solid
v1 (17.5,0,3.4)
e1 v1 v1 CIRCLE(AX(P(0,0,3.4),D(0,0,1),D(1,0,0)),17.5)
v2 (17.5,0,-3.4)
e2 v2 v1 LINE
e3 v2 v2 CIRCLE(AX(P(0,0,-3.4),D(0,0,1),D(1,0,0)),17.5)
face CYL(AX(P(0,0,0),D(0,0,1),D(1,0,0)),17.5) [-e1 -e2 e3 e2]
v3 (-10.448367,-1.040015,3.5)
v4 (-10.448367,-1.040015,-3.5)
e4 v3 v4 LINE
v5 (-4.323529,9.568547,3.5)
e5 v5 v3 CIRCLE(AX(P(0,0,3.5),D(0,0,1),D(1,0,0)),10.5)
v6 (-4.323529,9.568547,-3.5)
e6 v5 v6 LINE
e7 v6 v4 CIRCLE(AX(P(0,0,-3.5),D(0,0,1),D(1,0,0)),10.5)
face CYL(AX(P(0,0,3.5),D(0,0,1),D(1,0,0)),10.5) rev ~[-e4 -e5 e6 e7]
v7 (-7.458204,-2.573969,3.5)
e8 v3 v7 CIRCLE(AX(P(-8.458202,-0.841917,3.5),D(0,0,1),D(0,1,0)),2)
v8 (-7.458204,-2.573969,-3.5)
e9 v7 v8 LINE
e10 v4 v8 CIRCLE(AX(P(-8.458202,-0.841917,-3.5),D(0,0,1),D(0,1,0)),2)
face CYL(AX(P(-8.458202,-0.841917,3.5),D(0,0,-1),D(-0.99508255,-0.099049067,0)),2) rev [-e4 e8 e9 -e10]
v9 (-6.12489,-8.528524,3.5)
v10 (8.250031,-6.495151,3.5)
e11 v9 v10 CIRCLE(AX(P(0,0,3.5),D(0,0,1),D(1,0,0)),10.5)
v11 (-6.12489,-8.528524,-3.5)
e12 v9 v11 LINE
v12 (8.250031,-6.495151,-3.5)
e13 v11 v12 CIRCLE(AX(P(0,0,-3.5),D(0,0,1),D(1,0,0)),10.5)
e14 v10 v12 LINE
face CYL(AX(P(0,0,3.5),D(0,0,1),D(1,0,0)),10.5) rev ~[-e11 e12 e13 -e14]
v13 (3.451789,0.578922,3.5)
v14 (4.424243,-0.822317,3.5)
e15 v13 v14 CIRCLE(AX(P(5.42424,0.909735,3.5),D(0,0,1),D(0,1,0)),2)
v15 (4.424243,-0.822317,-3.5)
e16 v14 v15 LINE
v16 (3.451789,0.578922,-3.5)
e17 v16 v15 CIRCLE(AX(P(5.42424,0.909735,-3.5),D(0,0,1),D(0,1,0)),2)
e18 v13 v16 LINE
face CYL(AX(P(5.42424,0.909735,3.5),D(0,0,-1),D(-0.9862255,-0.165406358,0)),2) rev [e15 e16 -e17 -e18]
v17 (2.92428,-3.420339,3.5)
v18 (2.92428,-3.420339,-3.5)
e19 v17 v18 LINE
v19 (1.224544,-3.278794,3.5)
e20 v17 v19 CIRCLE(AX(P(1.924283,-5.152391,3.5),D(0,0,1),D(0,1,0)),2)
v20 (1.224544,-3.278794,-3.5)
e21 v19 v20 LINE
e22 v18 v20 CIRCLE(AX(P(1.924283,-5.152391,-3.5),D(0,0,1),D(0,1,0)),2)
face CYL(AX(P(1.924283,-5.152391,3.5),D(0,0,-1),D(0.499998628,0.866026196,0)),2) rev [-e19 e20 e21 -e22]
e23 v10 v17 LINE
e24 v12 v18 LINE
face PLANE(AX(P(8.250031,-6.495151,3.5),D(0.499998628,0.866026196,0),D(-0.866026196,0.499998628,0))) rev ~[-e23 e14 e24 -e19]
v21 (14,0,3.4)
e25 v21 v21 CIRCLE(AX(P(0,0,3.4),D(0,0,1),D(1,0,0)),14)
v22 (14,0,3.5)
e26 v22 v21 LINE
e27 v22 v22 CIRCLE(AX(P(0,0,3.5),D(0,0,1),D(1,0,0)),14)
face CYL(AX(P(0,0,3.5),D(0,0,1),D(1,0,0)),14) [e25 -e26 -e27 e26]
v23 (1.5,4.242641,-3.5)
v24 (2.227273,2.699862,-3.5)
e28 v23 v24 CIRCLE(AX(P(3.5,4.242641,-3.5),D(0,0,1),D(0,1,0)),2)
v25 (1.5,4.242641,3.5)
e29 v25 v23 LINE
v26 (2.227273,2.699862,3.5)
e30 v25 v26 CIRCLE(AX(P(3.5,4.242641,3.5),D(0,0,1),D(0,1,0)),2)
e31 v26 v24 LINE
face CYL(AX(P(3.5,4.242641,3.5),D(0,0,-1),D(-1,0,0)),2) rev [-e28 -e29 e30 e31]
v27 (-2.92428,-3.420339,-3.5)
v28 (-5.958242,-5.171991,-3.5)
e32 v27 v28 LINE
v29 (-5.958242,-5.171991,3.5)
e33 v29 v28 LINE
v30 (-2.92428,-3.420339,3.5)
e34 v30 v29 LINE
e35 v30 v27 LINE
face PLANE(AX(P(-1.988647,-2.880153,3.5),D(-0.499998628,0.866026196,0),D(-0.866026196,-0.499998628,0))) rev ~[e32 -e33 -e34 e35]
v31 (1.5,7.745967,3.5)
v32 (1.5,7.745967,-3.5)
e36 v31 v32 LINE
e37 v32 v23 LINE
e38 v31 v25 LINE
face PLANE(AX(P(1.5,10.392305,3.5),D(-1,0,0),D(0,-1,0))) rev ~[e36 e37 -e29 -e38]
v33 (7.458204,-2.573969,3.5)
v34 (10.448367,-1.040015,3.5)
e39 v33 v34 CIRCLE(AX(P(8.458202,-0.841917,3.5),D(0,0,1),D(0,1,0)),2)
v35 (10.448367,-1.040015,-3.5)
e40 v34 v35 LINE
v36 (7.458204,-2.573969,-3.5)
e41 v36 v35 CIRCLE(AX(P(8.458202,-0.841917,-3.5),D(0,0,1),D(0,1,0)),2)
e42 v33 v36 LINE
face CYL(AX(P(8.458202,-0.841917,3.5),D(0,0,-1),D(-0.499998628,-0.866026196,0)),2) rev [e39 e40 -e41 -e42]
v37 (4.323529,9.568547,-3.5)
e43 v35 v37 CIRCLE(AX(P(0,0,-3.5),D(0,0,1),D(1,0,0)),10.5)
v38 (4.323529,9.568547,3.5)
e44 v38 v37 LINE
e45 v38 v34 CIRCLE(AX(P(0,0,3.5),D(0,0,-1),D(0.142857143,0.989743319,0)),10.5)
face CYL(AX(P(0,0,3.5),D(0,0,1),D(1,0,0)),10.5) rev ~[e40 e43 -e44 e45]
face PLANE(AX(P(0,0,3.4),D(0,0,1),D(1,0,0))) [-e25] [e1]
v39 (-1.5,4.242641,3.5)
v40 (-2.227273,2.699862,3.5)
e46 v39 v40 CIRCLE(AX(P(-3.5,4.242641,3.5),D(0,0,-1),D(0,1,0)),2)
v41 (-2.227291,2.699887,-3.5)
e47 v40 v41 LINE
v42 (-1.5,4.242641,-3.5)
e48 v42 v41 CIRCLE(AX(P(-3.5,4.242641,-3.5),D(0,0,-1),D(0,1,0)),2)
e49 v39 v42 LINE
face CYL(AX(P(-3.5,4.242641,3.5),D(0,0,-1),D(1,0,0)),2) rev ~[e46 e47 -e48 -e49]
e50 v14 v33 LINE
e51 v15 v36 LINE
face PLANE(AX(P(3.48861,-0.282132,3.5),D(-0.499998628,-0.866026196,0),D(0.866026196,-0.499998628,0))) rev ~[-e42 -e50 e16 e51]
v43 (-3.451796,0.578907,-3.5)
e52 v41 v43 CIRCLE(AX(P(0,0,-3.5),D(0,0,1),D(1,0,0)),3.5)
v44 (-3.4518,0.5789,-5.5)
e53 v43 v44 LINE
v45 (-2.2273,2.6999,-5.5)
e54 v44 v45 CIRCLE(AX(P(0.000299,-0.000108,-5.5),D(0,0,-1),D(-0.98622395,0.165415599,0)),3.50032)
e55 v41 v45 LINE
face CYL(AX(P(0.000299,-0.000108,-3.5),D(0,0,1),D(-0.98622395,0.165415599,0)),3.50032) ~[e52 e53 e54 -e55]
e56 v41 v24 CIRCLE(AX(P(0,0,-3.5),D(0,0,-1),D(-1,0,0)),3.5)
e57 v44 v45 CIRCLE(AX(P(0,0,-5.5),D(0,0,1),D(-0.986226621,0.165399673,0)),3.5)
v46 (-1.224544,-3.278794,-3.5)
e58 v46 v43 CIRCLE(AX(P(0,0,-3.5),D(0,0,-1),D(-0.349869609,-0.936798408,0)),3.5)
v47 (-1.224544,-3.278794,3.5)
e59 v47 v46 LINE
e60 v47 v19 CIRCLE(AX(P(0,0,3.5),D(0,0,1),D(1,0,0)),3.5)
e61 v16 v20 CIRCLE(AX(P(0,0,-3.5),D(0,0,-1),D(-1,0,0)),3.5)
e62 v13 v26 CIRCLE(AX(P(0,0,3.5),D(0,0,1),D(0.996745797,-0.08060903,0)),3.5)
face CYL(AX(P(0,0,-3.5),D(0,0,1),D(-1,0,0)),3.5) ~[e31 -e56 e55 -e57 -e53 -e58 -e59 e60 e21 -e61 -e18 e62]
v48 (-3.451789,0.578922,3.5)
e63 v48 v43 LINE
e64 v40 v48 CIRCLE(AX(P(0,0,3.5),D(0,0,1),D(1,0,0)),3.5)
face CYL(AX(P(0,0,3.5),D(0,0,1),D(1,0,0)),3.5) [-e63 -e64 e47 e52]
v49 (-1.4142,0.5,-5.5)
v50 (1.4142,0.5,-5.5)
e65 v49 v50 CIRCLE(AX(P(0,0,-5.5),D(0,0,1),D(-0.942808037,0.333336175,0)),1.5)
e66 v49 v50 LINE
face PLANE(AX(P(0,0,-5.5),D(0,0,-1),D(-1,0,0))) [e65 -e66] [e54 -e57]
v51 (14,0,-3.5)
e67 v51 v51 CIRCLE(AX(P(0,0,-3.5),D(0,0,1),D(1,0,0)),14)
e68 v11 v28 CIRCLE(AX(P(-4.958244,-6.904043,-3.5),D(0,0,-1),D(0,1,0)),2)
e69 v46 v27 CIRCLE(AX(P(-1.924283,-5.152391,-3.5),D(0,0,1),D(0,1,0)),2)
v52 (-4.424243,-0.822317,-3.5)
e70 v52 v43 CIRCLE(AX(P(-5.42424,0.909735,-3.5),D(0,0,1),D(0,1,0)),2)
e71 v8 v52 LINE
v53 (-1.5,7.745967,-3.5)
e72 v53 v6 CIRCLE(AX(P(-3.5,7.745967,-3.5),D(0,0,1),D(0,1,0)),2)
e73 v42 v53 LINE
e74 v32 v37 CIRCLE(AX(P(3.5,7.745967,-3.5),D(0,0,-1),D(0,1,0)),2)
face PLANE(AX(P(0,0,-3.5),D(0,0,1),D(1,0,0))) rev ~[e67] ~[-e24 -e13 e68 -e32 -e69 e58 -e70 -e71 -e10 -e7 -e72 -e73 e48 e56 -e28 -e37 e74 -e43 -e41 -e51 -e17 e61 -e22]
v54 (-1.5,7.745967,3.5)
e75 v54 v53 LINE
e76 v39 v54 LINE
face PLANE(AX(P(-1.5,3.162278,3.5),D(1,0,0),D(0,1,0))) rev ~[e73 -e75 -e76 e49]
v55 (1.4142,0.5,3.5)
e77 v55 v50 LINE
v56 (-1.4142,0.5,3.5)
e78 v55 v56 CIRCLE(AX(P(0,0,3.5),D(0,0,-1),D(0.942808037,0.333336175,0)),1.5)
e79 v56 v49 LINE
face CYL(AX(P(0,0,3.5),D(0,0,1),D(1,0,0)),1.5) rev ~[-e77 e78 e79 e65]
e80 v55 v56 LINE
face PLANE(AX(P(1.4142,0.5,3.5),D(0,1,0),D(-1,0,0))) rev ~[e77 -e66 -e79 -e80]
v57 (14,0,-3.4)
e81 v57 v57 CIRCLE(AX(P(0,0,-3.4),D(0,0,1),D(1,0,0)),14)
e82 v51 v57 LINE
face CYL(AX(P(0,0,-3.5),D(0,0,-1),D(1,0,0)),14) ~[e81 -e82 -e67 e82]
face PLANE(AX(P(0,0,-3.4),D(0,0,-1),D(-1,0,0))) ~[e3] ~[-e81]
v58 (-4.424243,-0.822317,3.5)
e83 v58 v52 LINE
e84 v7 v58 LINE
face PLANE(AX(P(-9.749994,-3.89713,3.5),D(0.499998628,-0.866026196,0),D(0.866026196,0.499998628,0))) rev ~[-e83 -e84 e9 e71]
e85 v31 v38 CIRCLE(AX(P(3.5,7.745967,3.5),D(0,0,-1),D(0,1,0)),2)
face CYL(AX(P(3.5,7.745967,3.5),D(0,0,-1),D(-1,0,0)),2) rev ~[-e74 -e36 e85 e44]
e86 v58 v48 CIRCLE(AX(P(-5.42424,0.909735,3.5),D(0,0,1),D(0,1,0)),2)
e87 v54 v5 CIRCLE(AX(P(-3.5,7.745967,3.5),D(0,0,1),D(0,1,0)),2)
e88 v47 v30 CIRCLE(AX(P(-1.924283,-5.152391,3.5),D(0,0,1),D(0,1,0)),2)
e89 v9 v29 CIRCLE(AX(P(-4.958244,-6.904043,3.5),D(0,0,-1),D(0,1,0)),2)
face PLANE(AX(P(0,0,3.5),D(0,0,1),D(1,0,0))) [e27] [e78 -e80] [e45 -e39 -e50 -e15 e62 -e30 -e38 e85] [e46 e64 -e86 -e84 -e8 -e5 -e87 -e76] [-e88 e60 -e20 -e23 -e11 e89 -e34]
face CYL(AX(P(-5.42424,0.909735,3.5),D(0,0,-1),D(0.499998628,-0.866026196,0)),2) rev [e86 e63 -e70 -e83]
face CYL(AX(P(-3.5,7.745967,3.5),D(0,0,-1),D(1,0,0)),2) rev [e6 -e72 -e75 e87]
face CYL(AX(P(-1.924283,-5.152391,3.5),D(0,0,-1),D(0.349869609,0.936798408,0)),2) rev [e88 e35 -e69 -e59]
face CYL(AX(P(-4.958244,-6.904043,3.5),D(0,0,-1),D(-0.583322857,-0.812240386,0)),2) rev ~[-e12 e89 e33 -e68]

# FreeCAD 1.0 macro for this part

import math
import FreeCAD as App
import Part
import Sketcher
Q = App.Units.Quantity


def edges_at(feature, points):
    """Names of the edges that pass closest to the given points."""
    edges = feature.Shape.Edges
    near = lambda p: min(range(len(edges)), key=lambda i: edges[i].distToShape(Part.Vertex(*p))[0])
    return sorted({f"Edge{near(p) + 1}" for p in points})

doc = App.newDocument("Part")
body = doc.addObject("PartDesign::Body", "Body")

# Sketch on XY plane
sketch1 = doc.addObject("Sketcher::SketchObject", "Sketch")
body.addObject(sketch1)
sketch1.AttachmentSupport = (doc.XY_Plane, [""])
sketch1.MapMode = "FlatFace"
sketch1.addGeometry(Part.Circle(App.Vector(0, 0, 0), App.Vector(0, 0, 1), 18), False)
sketch1.addConstraint(Sketcher.Constraint("Coincident", 0, 3, -1, 1))
sketch1.addConstraint(Sketcher.Constraint("Diameter", 0, 35.0))
pad1 = doc.addObject("PartDesign::Pad", "Pad")
body.addObject(pad1)
pad1.Profile = sketch1
pad1.Length = 7
pad1.Midplane = True

# Sketch on XY plane
sketch2 = doc.addObject("Sketcher::SketchObject", "Sketch001")
body.addObject(sketch2)
sketch2.AttachmentSupport = (doc.XY_Plane, [""])
sketch2.MapMode = "FlatFace"
sketch2.AttachmentOffset = App.Placement(App.Vector(0, 0, 3.5), App.Rotation())
sketch2.addGeometry(Part.ArcOfCircle(Part.Circle(App.Vector(0, 0, 0), App.Vector(0, 0, 1), 10.5), math.radians(-22), math.radians(82)), False)
sketch2.addGeometry(Part.LineSegment(App.Vector(1.5, 10.4, 0), App.Vector(1.5, 3.2, 0)), False)
sketch2.addGeometry(Part.ArcOfCircle(Part.Circle(App.Vector(0, 0, 0), App.Vector(0, 0, 1), 3.5), math.radians(-5), math.radians(65)), False)
sketch2.addGeometry(Part.LineSegment(App.Vector(3.5, -0.3, 0), App.Vector(9.7, -3.9, 0)), False)
sketch2.addGeometry(Part.ArcOfCircle(Part.Circle(App.Vector(0, 0, 0), App.Vector(0, 0, 1), 10.5), math.radians(-142), math.radians(-38)), False)
sketch2.addGeometry(Part.LineSegment(App.Vector(8.3, -6.5, 0), App.Vector(2, -2.9, 0)), False)
sketch2.addGeometry(Part.ArcOfCircle(Part.Circle(App.Vector(0, 0, 0), App.Vector(0, 0, 1), 3.5), math.radians(-125), math.radians(-55)), False)
sketch2.addGeometry(Part.LineSegment(App.Vector(-2, -2.9, 0), App.Vector(-8.3, -6.5, 0)), False)
sketch2.addGeometry(Part.LineSegment(App.Vector(-1.5, 3.2, 0), App.Vector(-1.5, 10.4, 0)), False)
sketch2.addGeometry(Part.ArcOfCircle(Part.Circle(App.Vector(0, 0, 0), App.Vector(0, 0, 1), 10.5), math.radians(98), math.radians(202)), False)
sketch2.addGeometry(Part.LineSegment(App.Vector(-9.7, -3.9, 0), App.Vector(-3.5, -0.3, 0)), False)
sketch2.addGeometry(Part.ArcOfCircle(Part.Circle(App.Vector(0, 0, 0), App.Vector(0, 0, 1), 3.5), math.radians(115), math.radians(185)), False)
sketch2.addConstraint(Sketcher.Constraint("Coincident", 0, 2, 1, 1))
sketch2.addConstraint(Sketcher.Constraint("Coincident", 1, 2, 2, 2))
sketch2.addConstraint(Sketcher.Constraint("Coincident", 2, 1, 3, 1))
sketch2.addConstraint(Sketcher.Constraint("Coincident", 3, 2, 0, 1))
sketch2.addConstraint(Sketcher.Constraint("Coincident", 4, 2, 5, 1))
sketch2.addConstraint(Sketcher.Constraint("Coincident", 5, 2, 6, 2))
sketch2.addConstraint(Sketcher.Constraint("Coincident", 6, 1, 7, 1))
sketch2.addConstraint(Sketcher.Constraint("Coincident", 7, 2, 4, 1))
sketch2.addConstraint(Sketcher.Constraint("Coincident", 8, 2, 9, 1))
sketch2.addConstraint(Sketcher.Constraint("Coincident", 9, 2, 10, 1))
sketch2.addConstraint(Sketcher.Constraint("Coincident", 10, 2, 11, 2))
sketch2.addConstraint(Sketcher.Constraint("Coincident", 11, 1, 8, 1))
sketch2.addConstraint(Sketcher.Constraint("Vertical", 1))
sketch2.addConstraint(Sketcher.Constraint("Vertical", 8))
sketch2.addConstraint(Sketcher.Constraint("Coincident", 0, 3, -1, 1))
sketch2.addConstraint(Sketcher.Constraint("Coincident", 2, 3, -1, 1))
sketch2.addConstraint(Sketcher.Constraint("Coincident", 4, 3, -1, 1))
sketch2.addConstraint(Sketcher.Constraint("Coincident", 6, 3, -1, 1))
sketch2.addConstraint(Sketcher.Constraint("Coincident", 9, 3, -1, 1))
sketch2.addConstraint(Sketcher.Constraint("Coincident", 11, 3, -1, 1))
sketch2.addConstraint(Sketcher.Constraint("Equal", 0, 4))
sketch2.addConstraint(Sketcher.Constraint("Equal", 2, 6))
sketch2.addConstraint(Sketcher.Constraint("Equal", 4, 9))
sketch2.addConstraint(Sketcher.Constraint("Equal", 6, 11))
sketch2.addConstraint(Sketcher.Constraint("Parallel", 3, 5))
sketch2.addConstraint(Sketcher.Constraint("Parallel", 7, 10))
sketch2.addConstraint(Sketcher.Constraint("Horizontal", 5, 2, 6, 1))
sketch2.addConstraint(Sketcher.Constraint("Horizontal", 4, 2, 7, 2))
sketch2.addConstraint(Sketcher.Constraint("Horizontal", 0, 2, 8, 2))
sketch2.addConstraint(Sketcher.Constraint("Horizontal", 3, 2, 9, 2))
sketch2.addConstraint(Sketcher.Constraint("Equal", 3, 5))
sketch2.addConstraint(Sketcher.Constraint("Radius", 0, 10.5))
sketch2.addConstraint(Sketcher.Constraint("Radius", 2, 3.5))
sketch2.addConstraint(Sketcher.Constraint("DistanceX", 8, 2, 0, 2, 3.0))
sketch2.addConstraint(Sketcher.Constraint("Angle", 3, Q("-30 deg")))
sketch2.addConstraint(Sketcher.Constraint("DistanceX", 4, 2, 3, 2, 1.5))
pocket1 = doc.addObject("PartDesign::Pocket", "Pocket")
body.addObject(pocket1)
pocket1.Profile = sketch2
pocket1.Type = "ThroughAll"
doc.recompute()

fillet = doc.addObject("PartDesign::Fillet", "Fillet")
body.addObject(fillet)
fillet.Base = (pocket1, edges_at(pocket1, [
    (1.5, 3.162, 0),
    (3.489, -0.282, 0),
    (9.75, -3.897, 0),
    (-8.25, -6.495, 0),
    (-9.75, -3.897, 0),
    (-3.489, -0.282, 0),
    (-1.5, 3.162, 0),
    (1.5, 10.392, 0),
    (-1.5, 10.392, 0),
    (-1.989, -2.88, 0),
    (1.989, -2.88, 0),
]))
fillet.Radius = 2

# Sketch on XY plane
sketch3 = doc.addObject("Sketcher::SketchObject", "Sketch002")
body.addObject(sketch3)
sketch3.AttachmentSupport = (doc.XY_Plane, [""])
sketch3.MapMode = "FlatFace"
sketch3.AttachmentOffset = App.Placement(App.Vector(0, 0, -3.5), App.Rotation())
sketch3.addGeometry(Part.ArcOfCircle(Part.Circle(App.Vector(0, 0, 0), App.Vector(0, 0, 1), 3.5), math.radians(170), math.radians(490)), False)
sketch3.addGeometry(Part.ArcOfCircle(Part.Circle(App.Vector(0, 0, 0), App.Vector(0, 0, 1), 3.5), math.radians(130), math.radians(170)), False)
sketch3.addConstraint(Sketcher.Constraint("Tangent", 0, 1, 1, 2))
sketch3.addConstraint(Sketcher.Constraint("Coincident", 1, 1, 0, 2))
sketch3.addConstraint(Sketcher.Constraint("Coincident", 0, 3, -1, 1))
sketch3.addConstraint(Sketcher.Constraint("Radius", 0, 3.5))
sketch3.addConstraint(Sketcher.Constraint("DistanceY", -1, 1, 0, 1, 0.579))
sketch3.addConstraint(Sketcher.Constraint("DistanceY", 0, 1, 1, 1, 2.121))
pad2 = doc.addObject("PartDesign::Pad", "Pad001")
body.addObject(pad2)
pad2.Profile = sketch3
pad2.Length = 2
pad2.Reversed = True

# Sketch on XY plane
sketch4 = doc.addObject("Sketcher::SketchObject", "Sketch003")
body.addObject(sketch4)
sketch4.AttachmentSupport = (doc.XY_Plane, [""])
sketch4.MapMode = "FlatFace"
sketch4.AttachmentOffset = App.Placement(App.Vector(0, 0, 3.5), App.Rotation())
sketch4.addGeometry(Part.ArcOfCircle(Part.Circle(App.Vector(0, 0, 0), App.Vector(0, 0, 1), 1.5), math.radians(161), math.radians(379)), False)
sketch4.addGeometry(Part.LineSegment(App.Vector(-1.4, 0.5, 0), App.Vector(1.4, 0.5, 0)), False)
sketch4.addConstraint(Sketcher.Constraint("Coincident", 0, 1, 1, 1))
sketch4.addConstraint(Sketcher.Constraint("Coincident", 1, 2, 0, 2))
sketch4.addConstraint(Sketcher.Constraint("Horizontal", 1))
sketch4.addConstraint(Sketcher.Constraint("Coincident", 0, 3, -1, 1))
sketch4.addConstraint(Sketcher.Constraint("Radius", 0, 1.5))
sketch4.addConstraint(Sketcher.Constraint("DistanceY", -1, 1, 0, 1, 0.5))
pocket2 = doc.addObject("PartDesign::Pocket", "Pocket001")
body.addObject(pocket2)
pocket2.Profile = sketch4
pocket2.Type = "ThroughAll"

# Sketch on XY plane
sketch5 = doc.addObject("Sketcher::SketchObject", "Sketch004")
body.addObject(sketch5)
sketch5.AttachmentSupport = (doc.XY_Plane, [""])
sketch5.MapMode = "FlatFace"
sketch5.AttachmentOffset = App.Placement(App.Vector(0, 0, 3.5), App.Rotation())
sketch5.addGeometry(Part.Circle(App.Vector(0, 0, 0), App.Vector(0, 0, 1), 18), False)
sketch5.addGeometry(Part.Circle(App.Vector(0, 0, 0), App.Vector(0, 0, 1), 14), False)
sketch5.addConstraint(Sketcher.Constraint("Coincident", 0, 3, -1, 1))
sketch5.addConstraint(Sketcher.Constraint("Coincident", 1, 3, -1, 1))
sketch5.addConstraint(Sketcher.Constraint("Diameter", 1, 28.0))
sketch5.addConstraint(Sketcher.Constraint("Diameter", 0, 35.0))
pocket3 = doc.addObject("PartDesign::Pocket", "Pocket002")
body.addObject(pocket3)
pocket3.Profile = sketch5
pocket3.Length = 0.1
doc.recompute()

mirrored = doc.addObject("PartDesign::Mirrored", "Mirrored")
body.addObject(mirrored)
mirrored.Originals = [pocket3]
mirrored.MirrorPlane = (doc.XY_Plane, [""])
body.Tip = mirrored

doc.recompute()
